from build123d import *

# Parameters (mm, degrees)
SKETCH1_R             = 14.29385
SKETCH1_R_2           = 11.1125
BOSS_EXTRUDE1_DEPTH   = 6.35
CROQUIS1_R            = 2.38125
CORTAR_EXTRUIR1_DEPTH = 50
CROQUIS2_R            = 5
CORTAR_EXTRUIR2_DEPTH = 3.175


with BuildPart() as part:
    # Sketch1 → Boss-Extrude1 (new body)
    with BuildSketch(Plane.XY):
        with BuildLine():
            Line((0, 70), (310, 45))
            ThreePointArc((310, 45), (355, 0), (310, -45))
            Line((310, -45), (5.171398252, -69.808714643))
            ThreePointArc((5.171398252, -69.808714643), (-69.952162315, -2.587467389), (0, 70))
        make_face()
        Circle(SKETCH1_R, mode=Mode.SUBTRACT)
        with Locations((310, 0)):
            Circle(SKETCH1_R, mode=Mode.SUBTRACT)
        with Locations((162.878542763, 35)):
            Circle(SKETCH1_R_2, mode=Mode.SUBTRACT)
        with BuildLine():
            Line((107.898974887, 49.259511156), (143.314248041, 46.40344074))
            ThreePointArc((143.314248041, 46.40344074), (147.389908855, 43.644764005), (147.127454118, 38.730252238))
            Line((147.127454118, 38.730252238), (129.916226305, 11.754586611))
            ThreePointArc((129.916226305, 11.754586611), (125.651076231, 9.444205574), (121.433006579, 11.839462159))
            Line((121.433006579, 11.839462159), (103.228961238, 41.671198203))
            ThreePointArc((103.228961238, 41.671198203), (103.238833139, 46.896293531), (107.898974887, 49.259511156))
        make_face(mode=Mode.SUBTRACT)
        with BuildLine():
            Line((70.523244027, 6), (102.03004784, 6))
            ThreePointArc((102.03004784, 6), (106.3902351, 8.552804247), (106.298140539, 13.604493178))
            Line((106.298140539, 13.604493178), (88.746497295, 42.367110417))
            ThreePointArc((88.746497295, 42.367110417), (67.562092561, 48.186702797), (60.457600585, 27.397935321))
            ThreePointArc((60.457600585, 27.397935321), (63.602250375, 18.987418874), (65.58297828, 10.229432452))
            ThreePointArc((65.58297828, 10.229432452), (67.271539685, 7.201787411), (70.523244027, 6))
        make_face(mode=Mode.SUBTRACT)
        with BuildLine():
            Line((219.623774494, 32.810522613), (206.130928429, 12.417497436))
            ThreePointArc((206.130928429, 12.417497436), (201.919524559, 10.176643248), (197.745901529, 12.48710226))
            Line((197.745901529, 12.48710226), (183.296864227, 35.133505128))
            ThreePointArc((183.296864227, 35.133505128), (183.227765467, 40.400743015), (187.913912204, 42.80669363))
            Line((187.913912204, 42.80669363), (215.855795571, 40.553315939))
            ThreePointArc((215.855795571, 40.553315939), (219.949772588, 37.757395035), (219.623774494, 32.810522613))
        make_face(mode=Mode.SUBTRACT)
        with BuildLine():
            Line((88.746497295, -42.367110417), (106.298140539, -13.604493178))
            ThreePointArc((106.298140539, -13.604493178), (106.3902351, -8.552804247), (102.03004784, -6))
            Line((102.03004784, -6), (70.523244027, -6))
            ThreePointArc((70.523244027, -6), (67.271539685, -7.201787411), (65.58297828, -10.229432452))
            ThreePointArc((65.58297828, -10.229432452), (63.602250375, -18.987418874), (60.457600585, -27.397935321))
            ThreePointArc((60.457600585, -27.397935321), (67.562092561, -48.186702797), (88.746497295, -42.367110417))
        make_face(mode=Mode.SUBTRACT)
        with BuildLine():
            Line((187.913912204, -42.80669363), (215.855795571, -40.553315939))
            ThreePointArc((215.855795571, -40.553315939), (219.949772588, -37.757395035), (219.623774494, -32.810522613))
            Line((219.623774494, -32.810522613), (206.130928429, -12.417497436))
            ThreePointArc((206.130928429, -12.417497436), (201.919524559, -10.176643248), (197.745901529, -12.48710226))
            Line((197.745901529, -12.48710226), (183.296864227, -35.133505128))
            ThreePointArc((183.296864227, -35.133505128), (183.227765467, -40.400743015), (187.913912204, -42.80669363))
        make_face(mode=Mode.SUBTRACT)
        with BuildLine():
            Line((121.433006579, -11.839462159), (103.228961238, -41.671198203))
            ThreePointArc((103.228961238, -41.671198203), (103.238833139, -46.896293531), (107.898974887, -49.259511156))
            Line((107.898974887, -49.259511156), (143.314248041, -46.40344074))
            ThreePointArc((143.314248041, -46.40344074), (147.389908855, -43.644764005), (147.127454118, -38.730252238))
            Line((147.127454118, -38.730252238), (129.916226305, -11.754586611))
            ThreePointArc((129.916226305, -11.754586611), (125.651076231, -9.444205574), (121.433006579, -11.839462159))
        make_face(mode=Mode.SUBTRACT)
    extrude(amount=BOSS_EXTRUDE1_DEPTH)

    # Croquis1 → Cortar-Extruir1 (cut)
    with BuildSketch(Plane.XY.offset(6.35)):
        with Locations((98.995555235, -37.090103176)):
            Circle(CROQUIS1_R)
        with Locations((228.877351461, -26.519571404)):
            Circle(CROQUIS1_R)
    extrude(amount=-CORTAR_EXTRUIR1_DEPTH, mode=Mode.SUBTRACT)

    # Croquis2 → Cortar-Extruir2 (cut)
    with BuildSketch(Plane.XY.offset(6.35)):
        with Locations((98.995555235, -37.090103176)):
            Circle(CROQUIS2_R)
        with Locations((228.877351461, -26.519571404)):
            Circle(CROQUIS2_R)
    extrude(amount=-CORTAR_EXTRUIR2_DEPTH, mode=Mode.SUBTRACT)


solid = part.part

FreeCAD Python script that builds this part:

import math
import FreeCAD as App
import Part
import Sketcher
Q = App.Units.Quantity

doc = App.newDocument("Part")
params = doc.addObject("Spreadsheet::Sheet", "Params")
for row, (alias, value) in enumerate([
    ("sketch1_radius", "70 mm"),
    ("sketch1_radius2", "45 mm"),
    ("sketch1_radius3", "5 mm"),
    ("pad1_length", "6.35 mm"),
    ("pocket1_length", "50 mm"),
    ("sketch3_diameter", "10 mm"),
    ("pocket2_length", "3.175 mm"),
], start=1):
    params.set(f"A{row}", alias)
    params.set(f"B{row}", "=" + value)
    params.setAlias(f"B{row}", alias)

body = doc.addObject("PartDesign::Body", "Body")

# Sketch on XY plane
sketch1 = body.newObject("Sketcher::SketchObject", "Sketch")
sketch1.AttachmentSupport = (doc.getObject("XY_Plane"), [""])
sketch1.MapMode = "FlatFace"
sketch1.addGeometry(Part.LineSegment(App.Vector(310, 45, 0), App.Vector(0, 70, 0)), False)
sketch1.addGeometry(Part.ArcOfCircle(Part.Circle(App.Vector(0, 0, 0), App.Vector(0, 0, 1), 70), math.radians(90), math.radians(274)), False)
sketch1.addGeometry(Part.LineSegment(App.Vector(5, -70, 0), App.Vector(310, -45, 0)), False)
sketch1.addGeometry(Part.ArcOfCircle(Part.Circle(App.Vector(310, 0, 0), App.Vector(0, 0, 1), 45), math.radians(-90), math.radians(90)), False)
sketch1.addGeometry(Part.ArcOfCircle(Part.Circle(App.Vector(188, -38, 0), App.Vector(0, 0, 1), 5), math.radians(147), math.radians(275)), False)
sketch1.addGeometry(Part.LineSegment(App.Vector(183, -35, 0), App.Vector(198, -12, 0)), False)
sketch1.addGeometry(Part.ArcOfCircle(Part.Circle(App.Vector(202, -15, 0), App.Vector(0, 0, 1), 5), math.radians(33), math.radians(147)), False)
sketch1.addGeometry(Part.LineSegment(App.Vector(206, -12, 0), App.Vector(220, -33, 0)), False)
sketch1.addGeometry(Part.ArcOfCircle(Part.Circle(App.Vector(215, -36, 0), App.Vector(0, 0, 1), 5), math.radians(-85), math.radians(33)), False)
sketch1.addGeometry(Part.LineSegment(App.Vector(216, -41, 0), App.Vector(188, -43, 0)), False)
sketch1.addGeometry(Part.ArcOfCircle(Part.Circle(App.Vector(126, -14, 0), App.Vector(0, 0, 1), 5), math.radians(33), math.radians(149)), False)
sketch1.addGeometry(Part.LineSegment(App.Vector(130, -12, 0), App.Vector(147, -39, 0)), False)
sketch1.addGeometry(Part.ArcOfCircle(Part.Circle(App.Vector(143, -41, 0), App.Vector(0, 0, 1), 5), math.radians(-85), math.radians(33)), False)
sketch1.addGeometry(Part.LineSegment(App.Vector(143, -46, 0), App.Vector(108, -49, 0)), False)
sketch1.addGeometry(Part.ArcOfCircle(Part.Circle(App.Vector(107, -44, 0), App.Vector(0, 0, 1), 5), math.radians(149), math.radians(275)), False)
sketch1.addGeometry(Part.LineSegment(App.Vector(103, -42, 0), App.Vector(121, -12, 0)), False)
sketch1.addGeometry(Part.ArcOfCircle(Part.Circle(App.Vector(75, -34, 0), App.Vector(0, 0, 1), 16), math.radians(156), math.radians(329)), False)
sketch1.addGeometry(Part.ArcOfCircle(Part.Circle(App.Vector(0, 0, 0), App.Vector(0, 0, 1), 66), math.radians(-24.38), math.radians(-8.87)), False)
sketch1.addGeometry(Part.ArcOfCircle(Part.Circle(App.Vector(71, -11, 0), App.Vector(0, 0, 1), 5), math.radians(90), math.radians(171)), False)
sketch1.addGeometry(Part.LineSegment(App.Vector(71, -6, 0), App.Vector(102, -6, 0)), False)
sketch1.addGeometry(Part.ArcOfCircle(Part.Circle(App.Vector(102, -11, 0), App.Vector(0, 0, 1), 5), math.radians(-31), math.radians(90)), False)
sketch1.addGeometry(Part.LineSegment(App.Vector(106, -14, 0), App.Vector(89, -42, 0)), False)
sketch1.addGeometry(Part.Circle(App.Vector(310, 0, 0), App.Vector(0, 0, 1), 14), False)
sketch1.addGeometry(Part.LineSegment(App.Vector(220, 33, 0), App.Vector(206, 12, 0)), False)
sketch1.addGeometry(Part.ArcOfCircle(Part.Circle(App.Vector(202, 15, 0), App.Vector(0, 0, 1), 5), math.radians(-147), math.radians(-33)), False)
sketch1.addGeometry(Part.LineSegment(App.Vector(198, 12, 0), App.Vector(183, 35, 0)), False)
sketch1.addGeometry(Part.ArcOfCircle(Part.Circle(App.Vector(188, 38, 0), App.Vector(0, 0, 1), 5), math.radians(85), math.radians(213)), False)
sketch1.addGeometry(Part.LineSegment(App.Vector(188, 43, 0), App.Vector(216, 41, 0)), False)
sketch1.addGeometry(Part.ArcOfCircle(Part.Circle(App.Vector(215, 36, 0), App.Vector(0, 0, 1), 5), math.radians(-33), math.radians(85)), False)
sketch1.addGeometry(Part.Circle(App.Vector(163, 35, 0), App.Vector(0, 0, 1), 11), False)
sketch1.addGeometry(Part.Circle(App.Vector(0, 0, 0), App.Vector(0, 0, 1), 14), False)
sketch1.addGeometry(Part.LineSegment(App.Vector(108, 49, 0), App.Vector(143, 46, 0)), False)
sketch1.addGeometry(Part.ArcOfCircle(Part.Circle(App.Vector(143, 41, 0), App.Vector(0, 0, 1), 5), math.radians(-33), math.radians(85)), False)
sketch1.addGeometry(Part.LineSegment(App.Vector(147, 39, 0), App.Vector(130, 12, 0)), False)
sketch1.addGeometry(Part.ArcOfCircle(Part.Circle(App.Vector(126, 14, 0), App.Vector(0, 0, 1), 5), math.radians(-149), math.radians(-33)), False)
sketch1.addGeometry(Part.LineSegment(App.Vector(121, 12, 0), App.Vector(103, 42, 0)), False)
sketch1.addGeometry(Part.ArcOfCircle(Part.Circle(App.Vector(107, 44, 0), App.Vector(0, 0, 1), 5), math.radians(85), math.radians(211)), False)
sketch1.addGeometry(Part.ArcOfCircle(Part.Circle(App.Vector(71, 11, 0), App.Vector(0, 0, 1), 5), math.radians(-171), math.radians(-90)), False)
sketch1.addGeometry(Part.ArcOfCircle(Part.Circle(App.Vector(0, 0, 0), App.Vector(0, 0, 1), 66), math.radians(8.87), math.radians(24.38)), False)
sketch1.addGeometry(Part.ArcOfCircle(Part.Circle(App.Vector(75, 34, 0), App.Vector(0, 0, 1), 16), math.radians(31), math.radians(204)), False)
sketch1.addGeometry(Part.LineSegment(App.Vector(89, 42, 0), App.Vector(106, 14, 0)), False)
sketch1.addGeometry(Part.ArcOfCircle(Part.Circle(App.Vector(102, 11, 0), App.Vector(0, 0, 1), 5), math.radians(-90), math.radians(31)), False)
sketch1.addGeometry(Part.LineSegment(App.Vector(102, 6, 0), App.Vector(71, 6, 0)), False)
sketch1.addConstraint(Sketcher.Constraint("Coincident", 0, 2, 1, 1))
sketch1.addConstraint(Sketcher.Constraint("Coincident", 1, 2, 2, 1))
sketch1.addConstraint(Sketcher.Constraint("Coincident", 2, 2, 3, 1))
sketch1.addConstraint(Sketcher.Constraint("Coincident", 3, 2, 0, 1))
sketch1.addConstraint(Sketcher.Constraint("Tangent", 4, 1, 5, 1))
sketch1.addConstraint(Sketcher.Constraint("Tangent", 5, 2, 6, 2))
sketch1.addConstraint(Sketcher.Constraint("Tangent", 6, 1, 7, 1))
sketch1.addConstraint(Sketcher.Constraint("Tangent", 7, 2, 8, 2))
sketch1.addConstraint(Sketcher.Constraint("Tangent", 8, 1, 9, 1))
sketch1.addConstraint(Sketcher.Constraint("Tangent", 9, 2, 4, 2))
sketch1.addConstraint(Sketcher.Constraint("Tangent", 10, 1, 11, 1))
sketch1.addConstraint(Sketcher.Constraint("Tangent", 11, 2, 12, 2))
sketch1.addConstraint(Sketcher.Constraint("Tangent", 12, 1, 13, 1))
sketch1.addConstraint(Sketcher.Constraint("Tangent", 13, 2, 14, 2))
sketch1.addConstraint(Sketcher.Constraint("Tangent", 14, 1, 15, 1))
sketch1.addConstraint(Sketcher.Constraint("Tangent", 15, 2, 10, 2))
sketch1.addConstraint(Sketcher.Constraint("Tangent", 16, 1, 17, 1))
sketch1.addConstraint(Sketcher.Constraint("Tangent", 17, 2, 18, 2))
sketch1.addConstraint(Sketcher.Constraint("Tangent", 18, 1, 19, 1))
sketch1.addConstraint(Sketcher.Constraint("Tangent", 19, 2, 20, 2))
sketch1.addConstraint(Sketcher.Constraint("Tangent", 20, 1, 21, 1))
sketch1.addConstraint(Sketcher.Constraint("Tangent", 21, 2, 16, 2))
sketch1.addConstraint(Sketcher.Constraint("Tangent", 23, 2, 24, 2))
sketch1.addConstraint(Sketcher.Constraint("Tangent", 24, 1, 25, 1))
sketch1.addConstraint(Sketcher.Constraint("Tangent", 25, 2, 26, 2))
sketch1.addConstraint(Sketcher.Constraint("Tangent", 26, 1, 27, 1))
sketch1.addConstraint(Sketcher.Constraint("Tangent", 27, 2, 28, 2))
sketch1.addConstraint(Sketcher.Constraint("Tangent", 28, 1, 23, 1))
sketch1.addConstraint(Sketcher.Constraint("Tangent", 31, 2, 32, 2))
sketch1.addConstraint(Sketcher.Constraint("Tangent", 32, 1, 33, 1))
sketch1.addConstraint(Sketcher.Constraint("Tangent", 33, 2, 34, 2))
sketch1.addConstraint(Sketcher.Constraint("Tangent", 34, 1, 35, 1))
sketch1.addConstraint(Sketcher.Constraint("Tangent", 35, 2, 36, 2))
sketch1.addConstraint(Sketcher.Constraint("Tangent", 36, 1, 31, 1))
sketch1.addConstraint(Sketcher.Constraint("Tangent", 37, 1, 38, 1))
sketch1.addConstraint(Sketcher.Constraint("Tangent", 38, 2, 39, 2))
sketch1.addConstraint(Sketcher.Constraint("Tangent", 39, 1, 40, 1))
sketch1.addConstraint(Sketcher.Constraint("Tangent", 40, 2, 41, 2))
sketch1.addConstraint(Sketcher.Constraint("Tangent", 41, 1, 42, 1))
sketch1.addConstraint(Sketcher.Constraint("Tangent", 42, 2, 37, 2))
sketch1.addConstraint(Sketcher.Constraint("Horizontal", 19))
sketch1.addConstraint(Sketcher.Constraint("Horizontal", 42))
sketch1.addConstraint(Sketcher.Constraint("Coincident", 1, 3, -1, 1))
sketch1.addConstraint(Sketcher.Constraint("Coincident", 17, 3, -1, 1))
sketch1.addConstraint(Sketcher.Constraint("Coincident", 30, 3, -1, 1))
sketch1.addConstraint(Sketcher.Constraint("Coincident", 38, 3, -1, 1))
sketch1.addConstraint(Sketcher.Constraint("Coincident", 22, 3, 3, 3))
sketch1.addConstraint(Sketcher.Constraint("Equal", 4, 6))
sketch1.addConstraint(Sketcher.Constraint("Equal", 6, 8))
sketch1.addConstraint(Sketcher.Constraint("Equal", 8, 10))
sketch1.addConstraint(Sketcher.Constraint("Equal", 10, 12))
sketch1.addConstraint(Sketcher.Constraint("Equal", 12, 14))
sketch1.addConstraint(Sketcher.Constraint("Equal", 14, 18))
sketch1.addConstraint(Sketcher.Constraint("Equal", 18, 20))
sketch1.addConstraint(Sketcher.Constraint("Equal", 20, 24))
sketch1.addConstraint(Sketcher.Constraint("Equal", 24, 26))
sketch1.addConstraint(Sketcher.Constraint("Equal", 26, 28))
sketch1.addConstraint(Sketcher.Constraint("Equal", 22, 30))
sketch1.addConstraint(Sketcher.Constraint("Equal", 28, 32))
sketch1.addConstraint(Sketcher.Constraint("Equal", 32, 34))
sketch1.addConstraint(Sketcher.Constraint("Equal", 34, 36))
sketch1.addConstraint(Sketcher.Constraint("Equal", 36, 37))
sketch1.addConstraint(Sketcher.Constraint("Equal", 17, 38))
sketch1.addConstraint(Sketcher.Constraint("Equal", 16, 39))
sketch1.addConstraint(Sketcher.Constraint("Equal", 37, 41))
sketch1.addConstraint(Sketcher.Constraint("Symmetric", 6, 3, 24, 3, -1))
sketch1.addConstraint(Sketcher.Constraint("Symmetric", 4, 3, 26, 3, -1))
sketch1.addConstraint(Sketcher.Constraint("Symmetric", 8, 3, 28, 3, -1))
sketch1.addConstraint(Sketcher.Constraint("Symmetric", 12, 3, 32, 3, -1))
sketch1.addConstraint(Sketcher.Constraint("Symmetric", 10, 3, 34, 3, -1))
sketch1.addConstraint(Sketcher.Constraint("Symmetric", 14, 3, 36, 3, -1))
sketch1.addConstraint(Sketcher.Constraint("Symmetric", 20, 3, 41, 3, -1))
sketch1.addConstraint(Sketcher.Constraint("Symmetric", 2, 2, 3, 2, -1))
sketch1.addConstraint(Sketcher.Constraint("PointOnObject", 0, 2, -2))
sketch1.addConstraint(Sketcher.Constraint("Parallel", 9, 13))
sketch1.addConstraint(Sketcher.Constraint("Parallel", 15, 21))
sketch1.addConstraint(Sketcher.Constraint("Parallel", 11, 25))
sketch1.addConstraint(Sketcher.Constraint("Parallel", 0, 27))
sketch1.addConstraint(Sketcher.Constraint("Parallel", 35, 40))
sketch1.addConstraint(Sketcher.Constraint("Vertical", 22, 3, 2, 2))
sketch1.addConstraint(Sketcher.Constraint("Radius", 1, Q("70 mm")))
sketch1.addConstraint(Sketcher.Constraint("Radius", 3, Q("45 mm")))
sketch1.addConstraint(Sketcher.Constraint("Radius", 4, Q("5 mm")))
sketch1.addConstraint(Sketcher.Constraint("Diameter", 29, Q("22.225 mm")))
sketch1.addConstraint(Sketcher.Constraint("DistanceX", -1, 1, 3, 3, Q("310 mm")))
sketch1.addConstraint(Sketcher.Constraint("DistanceY", 18, 3, -1, 1, Q("11 mm")))
sketch1.addConstraint(Sketcher.Constraint("DistanceY", -1, 1, 29, 3, Q("35 mm")))
sketch1.addConstraint(Sketcher.Constraint("Diameter", 22, Q("28.5877 mm")))
sketch1.addConstraint(Sketcher.Constraint("Radius", 16, Q("16.03266 mm")))
sketch1.addConstraint(Sketcher.Constraint("Radius", 17, Q("66.375962 mm")))
sketch1.addConstraint(Sketcher.Constraint("Distance", 9, Q("28.032598 mm")))
sketch1.addConstraint(Sketcher.Constraint("DistanceX", -1, 1, 10, 3, Q("125.701099 mm")))
sketch1.addConstraint(Sketcher.Constraint("DistanceX", -1, 1, 1, 2, Q("5.171398 mm")))
sketch1.addConstraint(Sketcher.Constraint("DistanceX", -1, 1, 5, 2, Q("197.745902 mm")))
sketch1.addConstraint(Sketcher.Constraint("DistanceY", 14, 1, -1, 1, Q("41.671198 mm")))
sketch1.addConstraint(Sketcher.Constraint("DistanceX", -1, 1, 16, 1, Q("60.457601 mm")))
sketch1.addConstraint(Sketcher.Constraint("Distance", 5, Q("26.863251 mm")))
sketch1.addConstraint(Sketcher.Constraint("Distance", 11, Q("31.998639 mm")))
sketch1.addConstraint(Sketcher.Constraint("Distance", 13, Q("35.530251 mm")))
sketch1.addConstraint(Sketcher.Constraint("Distance", 21, Q("33.69493 mm")))
sketch1.addConstraint(Sketcher.Constraint("DistanceY", 6, 3, -1, 1, Q("15.176471 mm")))
sketch1.addConstraint(Sketcher.Constraint("DistanceX", -1, 1, 29, 3, Q("162.878543 mm")))
sketch1.setExpression("Constraints[80]", "Params.sketch1_radius")
sketch1.setExpression("Constraints[81]", "Params.sketch1_radius2")
sketch1.setExpression("Constraints[82]", "Params.sketch1_radius3")
pad1 = body.newObject("PartDesign::Pad", "Pad")
pad1.Profile = sketch1
pad1.setExpression("Length", "Params.pad1_length")

# Sketch on XY plane
sketch2 = body.newObject("Sketcher::SketchObject", "Sketch001")
sketch2.AttachmentSupport = (doc.getObject("XY_Plane"), [""])
sketch2.MapMode = "FlatFace"
sketch2.AttachmentOffset = App.Placement(App.Vector(0, 0, 6.35), App.Rotation())
sketch2.addGeometry(Part.Circle(App.Vector(99, -37.1, 0), App.Vector(0, 0, 1), 2.4), False)
sketch2.addGeometry(Part.Circle(App.Vector(228.9, -26.5, 0), App.Vector(0, 0, 1), 2.4), False)
sketch2.addConstraint(Sketcher.Constraint("Equal", 0, 1))
sketch2.addConstraint(Sketcher.Constraint("Diameter", 0, Q("4.7625 mm")))
sketch2.addConstraint(Sketcher.Constraint("DistanceX", -1, 1, 1, 3, Q("228.877351 mm")))
sketch2.addConstraint(Sketcher.Constraint("DistanceY", 1, 3, -1, 1, Q("26.519571 mm")))
sketch2.addConstraint(Sketcher.Constraint("DistanceY", 0, 3, 1, 3, Q("10.570532 mm")))
sketch2.addConstraint(Sketcher.Constraint("DistanceX", -1, 1, 0, 3, Q("98.995555 mm")))
pocket1 = body.newObject("PartDesign::Pocket", "Pocket")
pocket1.Profile = sketch2
pocket1.setExpression("Length", "Params.pocket1_length")

# Sketch on XY plane
sketch3 = body.newObject("Sketcher::SketchObject", "Sketch002")
sketch3.AttachmentSupport = (doc.getObject("XY_Plane"), [""])
sketch3.MapMode = "FlatFace"
sketch3.AttachmentOffset = App.Placement(App.Vector(0, 0, 6.35), App.Rotation())
sketch3.addGeometry(Part.Circle(App.Vector(99, -37, 0), App.Vector(0, 0, 1), 5), False)
sketch3.addGeometry(Part.Circle(App.Vector(229, -27, 0), App.Vector(0, 0, 1), 5), False)
sketch3.addConstraint(Sketcher.Constraint("Equal", 0, 1))
sketch3.addConstraint(Sketcher.Constraint("Diameter", 0, Q("10 mm")))
sketch3.addConstraint(Sketcher.Constraint("DistanceX", -1, 1, 1, 3, Q("228.877351 mm")))
sketch3.addConstraint(Sketcher.Constraint("DistanceY", 1, 3, -1, 1, Q("26.519571 mm")))
sketch3.addConstraint(Sketcher.Constraint("DistanceY", 0, 3, 1, 3, Q("10.570532 mm")))
sketch3.addConstraint(Sketcher.Constraint("DistanceX", -1, 1, 0, 3, Q("98.995555 mm")))
sketch3.setExpression("Constraints[1]", "Params.sketch3_diameter")
pocket2 = body.newObject("PartDesign::Pocket", "Pocket001")
pocket2.Profile = sketch3
pocket2.setExpression("Length", "Params.pocket2_length")

doc.recompute()
